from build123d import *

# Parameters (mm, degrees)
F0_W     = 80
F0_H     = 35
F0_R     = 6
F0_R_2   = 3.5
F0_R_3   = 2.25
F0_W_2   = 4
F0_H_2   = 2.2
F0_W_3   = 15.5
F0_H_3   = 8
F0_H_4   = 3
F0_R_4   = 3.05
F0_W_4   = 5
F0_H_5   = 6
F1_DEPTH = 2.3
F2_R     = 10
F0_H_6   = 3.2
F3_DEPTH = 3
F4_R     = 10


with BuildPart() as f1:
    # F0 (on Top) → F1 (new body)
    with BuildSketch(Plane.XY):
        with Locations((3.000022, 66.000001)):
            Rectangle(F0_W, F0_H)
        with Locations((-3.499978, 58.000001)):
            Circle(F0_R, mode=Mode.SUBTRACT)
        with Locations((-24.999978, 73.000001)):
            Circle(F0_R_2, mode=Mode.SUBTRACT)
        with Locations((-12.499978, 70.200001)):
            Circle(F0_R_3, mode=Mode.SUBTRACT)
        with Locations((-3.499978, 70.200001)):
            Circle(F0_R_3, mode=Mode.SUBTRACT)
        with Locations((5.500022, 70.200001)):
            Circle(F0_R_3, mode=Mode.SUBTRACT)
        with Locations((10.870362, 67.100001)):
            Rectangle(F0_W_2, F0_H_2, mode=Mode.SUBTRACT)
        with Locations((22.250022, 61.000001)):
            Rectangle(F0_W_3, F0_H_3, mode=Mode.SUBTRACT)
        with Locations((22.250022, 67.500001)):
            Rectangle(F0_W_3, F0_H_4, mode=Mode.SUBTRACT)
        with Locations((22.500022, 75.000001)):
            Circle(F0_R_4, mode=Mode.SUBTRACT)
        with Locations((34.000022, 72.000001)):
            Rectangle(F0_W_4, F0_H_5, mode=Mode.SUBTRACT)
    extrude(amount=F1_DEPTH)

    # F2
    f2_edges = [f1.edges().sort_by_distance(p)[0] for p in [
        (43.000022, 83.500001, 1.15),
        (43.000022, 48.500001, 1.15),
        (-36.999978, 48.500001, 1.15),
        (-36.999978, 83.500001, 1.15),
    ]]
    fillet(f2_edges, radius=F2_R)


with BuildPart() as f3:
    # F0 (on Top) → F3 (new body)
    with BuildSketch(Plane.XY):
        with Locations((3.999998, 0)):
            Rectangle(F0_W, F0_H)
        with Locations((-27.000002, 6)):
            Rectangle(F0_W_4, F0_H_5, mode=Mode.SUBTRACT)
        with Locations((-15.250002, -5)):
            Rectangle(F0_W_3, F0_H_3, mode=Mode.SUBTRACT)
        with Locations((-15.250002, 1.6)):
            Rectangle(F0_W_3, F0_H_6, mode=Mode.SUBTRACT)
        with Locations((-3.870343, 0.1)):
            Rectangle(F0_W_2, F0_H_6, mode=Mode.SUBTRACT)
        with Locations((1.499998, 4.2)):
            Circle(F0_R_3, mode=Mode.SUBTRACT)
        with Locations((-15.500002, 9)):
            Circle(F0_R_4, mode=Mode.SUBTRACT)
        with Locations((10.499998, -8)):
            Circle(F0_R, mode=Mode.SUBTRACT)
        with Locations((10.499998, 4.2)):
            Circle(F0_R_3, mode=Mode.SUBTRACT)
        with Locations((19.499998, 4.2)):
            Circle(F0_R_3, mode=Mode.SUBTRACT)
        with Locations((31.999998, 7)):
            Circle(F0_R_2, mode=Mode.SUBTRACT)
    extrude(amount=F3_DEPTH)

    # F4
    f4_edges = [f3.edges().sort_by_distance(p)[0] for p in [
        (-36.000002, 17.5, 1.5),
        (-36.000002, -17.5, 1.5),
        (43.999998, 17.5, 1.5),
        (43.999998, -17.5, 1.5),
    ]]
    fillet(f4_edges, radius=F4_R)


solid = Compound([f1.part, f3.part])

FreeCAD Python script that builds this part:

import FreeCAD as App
import Part
import Sketcher


def edges_at(feature, points):
    """Names of the edges that pass closest to the given points."""
    edges = feature.Shape.Edges
    near = lambda p: min(range(len(edges)), key=lambda i: edges[i].distToShape(Part.Vertex(*p))[0])
    return sorted({f"Edge{near(p) + 1}" for p in points})

doc = App.newDocument("Part")
body = doc.addObject("PartDesign::Body", "Body")

# Sketch on XY plane
sketch1 = body.newObject("Sketcher::SketchObject", "Sketch")
sketch1.AttachmentSupport = (doc.getObject("XY_Plane"), [""])
sketch1.MapMode = "FlatFace"
sketch1.addGeometry(Part.LineSegment(App.Vector(-37, 83.5, 0), App.Vector(-37, 48.5, 0)), False)
sketch1.addGeometry(Part.LineSegment(App.Vector(-37, 48.5, 0), App.Vector(43, 48.5, 0)), False)
sketch1.addGeometry(Part.LineSegment(App.Vector(43, 48.5, 0), App.Vector(43, 83.5, 0)), False)
sketch1.addGeometry(Part.LineSegment(App.Vector(43, 83.5, 0), App.Vector(-37, 83.5, 0)), False)
sketch1.addGeometry(Part.Circle(App.Vector(-3.5, 58, 0), App.Vector(0, 0, 1), 6), False)
sketch1.addGeometry(Part.LineSegment(App.Vector(30, 57, 0), App.Vector(14.5, 57, 0)), False)
sketch1.addGeometry(Part.LineSegment(App.Vector(14.5, 57, 0), App.Vector(14.5, 65, 0)), False)
sketch1.addGeometry(Part.LineSegment(App.Vector(14.5, 65, 0), App.Vector(30, 65, 0)), False)
sketch1.addGeometry(Part.LineSegment(App.Vector(30, 65, 0), App.Vector(30, 57, 0)), False)
sketch1.addGeometry(Part.Circle(App.Vector(-12.5, 70.2, 0), App.Vector(0, 0, 1), 2.2), False)
sketch1.addGeometry(Part.Circle(App.Vector(-3.5, 70.2, 0), App.Vector(0, 0, 1), 2.2), False)
sketch1.addGeometry(Part.Circle(App.Vector(-25, 73, 0), App.Vector(0, 0, 1), 3.5), False)
sketch1.addGeometry(Part.LineSegment(App.Vector(12.9, 66, 0), App.Vector(8.9, 66, 0)), False)
sketch1.addGeometry(Part.LineSegment(App.Vector(8.9, 66, 0), App.Vector(8.9, 68.2, 0)), False)
sketch1.addGeometry(Part.LineSegment(App.Vector(8.9, 68.2, 0), App.Vector(12.9, 68.2, 0)), False)
sketch1.addGeometry(Part.LineSegment(App.Vector(12.9, 68.2, 0), App.Vector(12.9, 66, 0)), False)
sketch1.addGeometry(Part.Circle(App.Vector(5.5, 70.2, 0), App.Vector(0, 0, 1), 2.2), False)
sketch1.addGeometry(Part.LineSegment(App.Vector(30, 66, 0), App.Vector(14.5, 66, 0)), False)
sketch1.addGeometry(Part.LineSegment(App.Vector(14.5, 66, 0), App.Vector(14.5, 69, 0)), False)
sketch1.addGeometry(Part.LineSegment(App.Vector(14.5, 69, 0), App.Vector(30, 69, 0)), False)
sketch1.addGeometry(Part.LineSegment(App.Vector(30, 69, 0), App.Vector(30, 66, 0)), False)
sketch1.addGeometry(Part.LineSegment(App.Vector(36.5, 69, 0), App.Vector(31.5, 69, 0)), False)
sketch1.addGeometry(Part.LineSegment(App.Vector(31.5, 69, 0), App.Vector(31.5, 75, 0)), False)
sketch1.addGeometry(Part.LineSegment(App.Vector(31.5, 75, 0), App.Vector(36.5, 75, 0)), False)
sketch1.addGeometry(Part.LineSegment(App.Vector(36.5, 75, 0), App.Vector(36.5, 69, 0)), False)
sketch1.addGeometry(Part.Circle(App.Vector(22.5, 75, 0), App.Vector(0, 0, 1), 3), False)
sketch1.addConstraint(Sketcher.Constraint("Coincident", 0, 2, 1, 1))
sketch1.addConstraint(Sketcher.Constraint("Coincident", 1, 2, 2, 1))
sketch1.addConstraint(Sketcher.Constraint("Coincident", 2, 2, 3, 1))
sketch1.addConstraint(Sketcher.Constraint("Coincident", 3, 2, 0, 1))
sketch1.addConstraint(Sketcher.Constraint("Coincident", 5, 2, 6, 1))
sketch1.addConstraint(Sketcher.Constraint("Coincident", 6, 2, 7, 1))
sketch1.addConstraint(Sketcher.Constraint("Coincident", 7, 2, 8, 1))
sketch1.addConstraint(Sketcher.Constraint("Coincident", 8, 2, 5, 1))
sketch1.addConstraint(Sketcher.Constraint("Coincident", 12, 2, 13, 1))
sketch1.addConstraint(Sketcher.Constraint("Coincident", 13, 2, 14, 1))
sketch1.addConstraint(Sketcher.Constraint("Coincident", 14, 2, 15, 1))
sketch1.addConstraint(Sketcher.Constraint("Coincident", 15, 2, 12, 1))
sketch1.addConstraint(Sketcher.Constraint("Coincident", 17, 2, 18, 1))
sketch1.addConstraint(Sketcher.Constraint("Coincident", 18, 2, 19, 1))
sketch1.addConstraint(Sketcher.Constraint("Coincident", 19, 2, 20, 1))
sketch1.addConstraint(Sketcher.Constraint("Coincident", 20, 2, 17, 1))
sketch1.addConstraint(Sketcher.Constraint("Coincident", 21, 2, 22, 1))
sketch1.addConstraint(Sketcher.Constraint("Coincident", 22, 2, 23, 1))
sketch1.addConstraint(Sketcher.Constraint("Coincident", 23, 2, 24, 1))
sketch1.addConstraint(Sketcher.Constraint("Coincident", 24, 2, 21, 1))
sketch1.addConstraint(Sketcher.Constraint("Vertical", 0))
sketch1.addConstraint(Sketcher.Constraint("Horizontal", 1))
sketch1.addConstraint(Sketcher.Constraint("Vertical", 2))
sketch1.addConstraint(Sketcher.Constraint("Horizontal", 3))
sketch1.addConstraint(Sketcher.Constraint("Horizontal", 5))
sketch1.addConstraint(Sketcher.Constraint("Vertical", 6))
sketch1.addConstraint(Sketcher.Constraint("Horizontal", 7))
sketch1.addConstraint(Sketcher.Constraint("Vertical", 8))
sketch1.addConstraint(Sketcher.Constraint("Horizontal", 12))
sketch1.addConstraint(Sketcher.Constraint("Vertical", 13))
sketch1.addConstraint(Sketcher.Constraint("Horizontal", 14))
sketch1.addConstraint(Sketcher.Constraint("Vertical", 15))
sketch1.addConstraint(Sketcher.Constraint("Horizontal", 17))
sketch1.addConstraint(Sketcher.Constraint("Vertical", 18))
sketch1.addConstraint(Sketcher.Constraint("Horizontal", 19))
sketch1.addConstraint(Sketcher.Constraint("Vertical", 20))
sketch1.addConstraint(Sketcher.Constraint("Horizontal", 21))
sketch1.addConstraint(Sketcher.Constraint("Vertical", 22))
sketch1.addConstraint(Sketcher.Constraint("Horizontal", 23))
sketch1.addConstraint(Sketcher.Constraint("Vertical", 24))
sketch1.addConstraint(Sketcher.Constraint("Equal", 9, 10))
sketch1.addConstraint(Sketcher.Constraint("Equal", 10, 16))
sketch1.addConstraint(Sketcher.Constraint("Horizontal", 9, 3, 10, 3))
sketch1.addConstraint(Sketcher.Constraint("Horizontal", 10, 3, 16, 3))
sketch1.addConstraint(Sketcher.Constraint("Horizontal", 15, 2, 17, 2))
sketch1.addConstraint(Sketcher.Constraint("Horizontal", 19, 2, 21, 2))
sketch1.addConstraint(Sketcher.Constraint("Horizontal", 25, 3, 22, 2))
sketch1.addConstraint(Sketcher.Constraint("Vertical", 4, 3, 10, 3))
sketch1.addConstraint(Sketcher.Constraint("Vertical", 6, 2, 17, 2))
sketch1.addConstraint(Sketcher.Constraint("Vertical", 8, 2, 19, 2))
sketch1.addConstraint(Sketcher.Constraint("Diameter", 4, 12.0))
sketch1.addConstraint(Sketcher.Constraint("Diameter", 11, 7.0))
sketch1.addConstraint(Sketcher.Constraint("Diameter", 9, 4.5))
sketch1.addConstraint(Sketcher.Constraint("Diameter", 25, 6.1))
sketch1.addConstraint(Sketcher.Constraint("DistanceX", 1, 1, 1, 2, 80.0))
sketch1.addConstraint(Sketcher.Constraint("DistanceX", 12, 2, 12, 1, 4.0))
sketch1.addConstraint(Sketcher.Constraint("DistanceX", 21, 2, 21, 1, 5.0))
sketch1.addConstraint(Sketcher.Constraint("DistanceY", 0, 2, 0, 1, 35.0))
sketch1.addConstraint(Sketcher.Constraint("DistanceY", 6, 1, 6, 2, 8.0))
sketch1.addConstraint(Sketcher.Constraint("DistanceY", 18, 1, 18, 2, 3.0))
sketch1.addConstraint(Sketcher.Constraint("DistanceY", 22, 1, 22, 2, 6.0))
sketch1.addConstraint(Sketcher.Constraint("DistanceX", 5, 2, 5, 1, 15.5))
sketch1.addConstraint(Sketcher.Constraint("DistanceY", 13, 1, 13, 2, 2.2))
sketch1.addConstraint(Sketcher.Constraint("DistanceY", -1, 1, 4, 3, 58.000001))
sketch1.addConstraint(Sketcher.Constraint("DistanceY", -1, 1, 11, 3, 73.000001))
sketch1.addConstraint(Sketcher.Constraint("DistanceY", -1, 1, 25, 3, 75.000001))
sketch1.addConstraint(Sketcher.Constraint("DistanceY", -1, 1, 5, 2, 57.000001))
sketch1.addConstraint(Sketcher.Constraint("DistanceX", 9, 3, 4, 3, 9.0))
sketch1.addConstraint(Sketcher.Constraint("DistanceX", 10, 3, 16, 3, 9.0))
sketch1.addConstraint(Sketcher.Constraint("DistanceX", 16, 3, 25, 3, 17.0))
sketch1.addConstraint(Sketcher.Constraint("DistanceX", 0, 2, 11, 3, 12.0))
sketch1.addConstraint(Sketcher.Constraint("DistanceX", 16, 3, 5, 2, 9.0))
sketch1.addConstraint(Sketcher.Constraint("DistanceX", 7, 2, 1, 2, 13.0))
sketch1.addConstraint(Sketcher.Constraint("DistanceY", 13, 2, 16, 3, 2.0))
sketch1.addConstraint(Sketcher.Constraint("DistanceX", 25, 3, 21, 2, 9.0))
sketch1.addConstraint(Sketcher.Constraint("DistanceY", -1, 1, 0, 2, 48.500001))
sketch1.addConstraint(Sketcher.Constraint("DistanceX", 4, 3, -1, 1, 3.499978))
sketch1.addConstraint(Sketcher.Constraint("DistanceX", 16, 3, 12, 2, 3.37034))
pad1 = body.newObject("PartDesign::Pad", "Pad")
pad1.Profile = sketch1
pad1.Length = 2.3
doc.recompute()

fillet = body.newObject("PartDesign::Fillet", "Fillet")
fillet.Base = (pad1, edges_at(pad1, [
    (43, 83.5, 1.15),
    (43, 48.5, 1.15),
    (-37, 48.5, 1.15),
    (-37, 83.5, 1.15),
]))
fillet.Radius = 10
body2 = doc.addObject("PartDesign::Body", "Body001")

# Sketch on XY plane
sketch2 = body2.newObject("Sketcher::SketchObject", "Sketch001")
sketch2.AttachmentSupport = (doc.getObject("XY_Plane001"), [""])
sketch2.MapMode = "FlatFace"
sketch2.addGeometry(Part.LineSegment(App.Vector(-36, 17.5, 0), App.Vector(-36, -17.5, 0)), False)
sketch2.addGeometry(Part.LineSegment(App.Vector(-36, -17.5, 0), App.Vector(44, -17.5, 0)), False)
sketch2.addGeometry(Part.LineSegment(App.Vector(44, -17.5, 0), App.Vector(44, 17.5, 0)), False)
sketch2.addGeometry(Part.LineSegment(App.Vector(44, 17.5, 0), App.Vector(-36, 17.5, 0)), False)
sketch2.addGeometry(Part.LineSegment(App.Vector(-7.5, -9, 0), App.Vector(-23, -9, 0)), False)
sketch2.addGeometry(Part.LineSegment(App.Vector(-23, -9, 0), App.Vector(-23, -1, 0)), False)
sketch2.addGeometry(Part.LineSegment(App.Vector(-23, -1, 0), App.Vector(-7.5, -1, 0)), False)
sketch2.addGeometry(Part.LineSegment(App.Vector(-7.5, -1, 0), App.Vector(-7.5, -9, 0)), False)
sketch2.addGeometry(Part.Circle(App.Vector(10.5, -8, 0), App.Vector(0, 0, 1), 6), False)
sketch2.addGeometry(Part.LineSegment(App.Vector(-7.5, 0, 0), App.Vector(-23, 0, 0)), False)
sketch2.addGeometry(Part.LineSegment(App.Vector(-23, 0, 0), App.Vector(-23, 3.2, 0)), False)
sketch2.addGeometry(Part.LineSegment(App.Vector(-23, 3.2, 0), App.Vector(-7.5, 3.2, 0)), False)
sketch2.addGeometry(Part.LineSegment(App.Vector(-7.5, 3.2, 0), App.Vector(-7.5, 0, 0)), False)
sketch2.addGeometry(Part.LineSegment(App.Vector(-1.9, -1.5, 0), App.Vector(-5.9, -1.5, 0)), False)
sketch2.addGeometry(Part.LineSegment(App.Vector(-5.9, -1.5, 0), App.Vector(-5.9, 1.7, 0)), False)
sketch2.addGeometry(Part.LineSegment(App.Vector(-5.9, 1.7, 0), App.Vector(-1.9, 1.7, 0)), False)
sketch2.addGeometry(Part.LineSegment(App.Vector(-1.9, 1.7, 0), App.Vector(-1.9, -1.5, 0)), False)
sketch2.addGeometry(Part.Circle(App.Vector(1.5, 4.2, 0), App.Vector(0, 0, 1), 2.2), False)
sketch2.addGeometry(Part.LineSegment(App.Vector(-24.5, 3, 0), App.Vector(-29.5, 3, 0)), False)
sketch2.addGeometry(Part.LineSegment(App.Vector(-29.5, 3, 0), App.Vector(-29.5, 9, 0)), False)
sketch2.addGeometry(Part.LineSegment(App.Vector(-29.5, 9, 0), App.Vector(-24.5, 9, 0)), False)
sketch2.addGeometry(Part.LineSegment(App.Vector(-24.5, 9, 0), App.Vector(-24.5, 3, 0)), False)
sketch2.addGeometry(Part.Circle(App.Vector(-15.5, 9, 0), App.Vector(0, 0, 1), 3), False)
sketch2.addGeometry(Part.Circle(App.Vector(10.5, 4.2, 0), App.Vector(0, 0, 1), 2.2), False)
sketch2.addGeometry(Part.Circle(App.Vector(19.5, 4.2, 0), App.Vector(0, 0, 1), 2.2), False)
sketch2.addGeometry(Part.Circle(App.Vector(32, 7, 0), App.Vector(0, 0, 1), 3.5), False)
sketch2.addConstraint(Sketcher.Constraint("Coincident", 0, 2, 1, 1))
sketch2.addConstraint(Sketcher.Constraint("Coincident", 1, 2, 2, 1))
sketch2.addConstraint(Sketcher.Constraint("Coincident", 2, 2, 3, 1))
sketch2.addConstraint(Sketcher.Constraint("Coincident", 3, 2, 0, 1))
sketch2.addConstraint(Sketcher.Constraint("Coincident", 4, 2, 5, 1))
sketch2.addConstraint(Sketcher.Constraint("Coincident", 5, 2, 6, 1))
sketch2.addConstraint(Sketcher.Constraint("Coincident", 6, 2, 7, 1))
sketch2.addConstraint(Sketcher.Constraint("Coincident", 7, 2, 4, 1))
sketch2.addConstraint(Sketcher.Constraint("Coincident", 9, 2, 10, 1))
sketch2.addConstraint(Sketcher.Constraint("Coincident", 10, 2, 11, 1))
sketch2.addConstraint(Sketcher.Constraint("Coincident", 11, 2, 12, 1))
sketch2.addConstraint(Sketcher.Constraint("Coincident", 12, 2, 9, 1))
sketch2.addConstraint(Sketcher.Constraint("Coincident", 13, 2, 14, 1))
sketch2.addConstraint(Sketcher.Constraint("Coincident", 14, 2, 15, 1))
sketch2.addConstraint(Sketcher.Constraint("Coincident", 15, 2, 16, 1))
sketch2.addConstraint(Sketcher.Constraint("Coincident", 16, 2, 13, 1))
sketch2.addConstraint(Sketcher.Constraint("Coincident", 18, 2, 19, 1))
sketch2.addConstraint(Sketcher.Constraint("Coincident", 19, 2, 20, 1))
sketch2.addConstraint(Sketcher.Constraint("Coincident", 20, 2, 21, 1))
sketch2.addConstraint(Sketcher.Constraint("Coincident", 21, 2, 18, 1))
sketch2.addConstraint(Sketcher.Constraint("Vertical", 0))
sketch2.addConstraint(Sketcher.Constraint("Horizontal", 1))
sketch2.addConstraint(Sketcher.Constraint("Vertical", 2))
sketch2.addConstraint(Sketcher.Constraint("Horizontal", 3))
sketch2.addConstraint(Sketcher.Constraint("Horizontal", 4))
sketch2.addConstraint(Sketcher.Constraint("Vertical", 5))
sketch2.addConstraint(Sketcher.Constraint("Horizontal", 6))
sketch2.addConstraint(Sketcher.Constraint("Vertical", 7))
sketch2.addConstraint(Sketcher.Constraint("Horizontal", 9))
sketch2.addConstraint(Sketcher.Constraint("Vertical", 10))
sketch2.addConstraint(Sketcher.Constraint("Horizontal", 11))
sketch2.addConstraint(Sketcher.Constraint("Vertical", 12))
sketch2.addConstraint(Sketcher.Constraint("Horizontal", 13))
sketch2.addConstraint(Sketcher.Constraint("Vertical", 14))
sketch2.addConstraint(Sketcher.Constraint("Horizontal", 15))
sketch2.addConstraint(Sketcher.Constraint("Vertical", 16))
sketch2.addConstraint(Sketcher.Constraint("Horizontal", 18))
sketch2.addConstraint(Sketcher.Constraint("Vertical", 19))
sketch2.addConstraint(Sketcher.Constraint("Horizontal", 20))
sketch2.addConstraint(Sketcher.Constraint("Vertical", 21))
sketch2.addConstraint(Sketcher.Constraint("Equal", 17, 23))
sketch2.addConstraint(Sketcher.Constraint("Equal", 23, 24))
sketch2.addConstraint(Sketcher.Constraint("PointOnObject", 9, 2, -1))
sketch2.addConstraint(Sketcher.Constraint("Horizontal", 17, 3, 23, 3))
sketch2.addConstraint(Sketcher.Constraint("Horizontal", 23, 3, 24, 3))
sketch2.addConstraint(Sketcher.Constraint("Horizontal", 22, 3, 19, 2))
sketch2.addConstraint(Sketcher.Constraint("Vertical", 8, 3, 23, 3))
sketch2.addConstraint(Sketcher.Constraint("Vertical", 5, 2, 9, 2))
sketch2.addConstraint(Sketcher.Constraint("Vertical", 7, 2, 11, 2))
sketch2.addConstraint(Sketcher.Constraint("Equal", 12, 14))
sketch2.addConstraint(Sketcher.Constraint("Diameter", 8, 12.0))
sketch2.addConstraint(Sketcher.Constraint("Diameter", 25, 7.0))
sketch2.addConstraint(Sketcher.Constraint("Diameter", 17, 4.5))
sketch2.addConstraint(Sketcher.Constraint("Diameter", 22, 6.1))
sketch2.addConstraint(Sketcher.Constraint("DistanceX", 1, 1, 1, 2, 80.0))
sketch2.addConstraint(Sketcher.Constraint("DistanceX", 13, 2, 13, 1, 4.0))
sketch2.addConstraint(Sketcher.Constraint("DistanceX", 18, 2, 18, 1, 5.0))
sketch2.addConstraint(Sketcher.Constraint("DistanceY", 0, 2, 0, 1, 35.0))
sketch2.addConstraint(Sketcher.Constraint("DistanceY", 5, 1, 5, 2, 8.0))
sketch2.addConstraint(Sketcher.Constraint("DistanceY", 19, 1, 19, 2, 6.0))
sketch2.addConstraint(Sketcher.Constraint("DistanceX", 4, 2, 4, 1, 15.5))
sketch2.addConstraint(Sketcher.Constraint("DistanceY", 10, 1, 10, 2, 3.2))
sketch2.addConstraint(Sketcher.Constraint("DistanceY", 8, 3, -1, 1, 8.0))
sketch2.addConstraint(Sketcher.Constraint("DistanceY", -1, 1, 22, 3, 9.0))
sketch2.addConstraint(Sketcher.Constraint("DistanceX", -1, 1, 25, 3, 31.999998))
sketch2.addConstraint(Sketcher.Constraint("DistanceY", -1, 1, 25, 3, 7.0))
sketch2.addConstraint(Sketcher.Constraint("DistanceX", 4, 2, -1, 1, 23.000002))
sketch2.addConstraint(Sketcher.Constraint("DistanceY", 4, 2, -1, 1, 9.0))
sketch2.addConstraint(Sketcher.Constraint("DistanceX", 17, 3, 8, 3, 9.0))
sketch2.addConstraint(Sketcher.Constraint("DistanceX", 22, 3, 17, 3, 17.0))
sketch2.addConstraint(Sketcher.Constraint("DistanceX", 23, 3, 24, 3, 9.0))
sketch2.addConstraint(Sketcher.Constraint("DistanceX", 25, 3, 1, 2, 12.0))
sketch2.addConstraint(Sketcher.Constraint("DistanceX", 6, 2, 17, 3, 9.0))
sketch2.addConstraint(Sketcher.Constraint("DistanceY", 11, 2, 17, 3, 1.0))
sketch2.addConstraint(Sketcher.Constraint("DistanceX", 18, 2, 22, 3, 14.0))
sketch2.addConstraint(Sketcher.Constraint("DistanceY", 0, 2, -1, 1, 17.5))
sketch2.addConstraint(Sketcher.Constraint("DistanceY", 13, 2, -1, 1, 1.5))
sketch2.addConstraint(Sketcher.Constraint("DistanceX", 6, 2, 13, 2, 1.629659))
pad2 = body2.newObject("PartDesign::Pad", "Pad001")
pad2.Profile = sketch2
pad2.Length = 3
doc.recompute()

fillet2 = body2.newObject("PartDesign::Fillet", "Fillet001")
fillet2.Base = (pad2, edges_at(pad2, [
    (-36, 17.5, 1.5),
    (-36, -17.5, 1.5),
    (44, 17.5, 1.5),
    (44, -17.5, 1.5),
]))
fillet2.Radius = 10

doc.recompute()
